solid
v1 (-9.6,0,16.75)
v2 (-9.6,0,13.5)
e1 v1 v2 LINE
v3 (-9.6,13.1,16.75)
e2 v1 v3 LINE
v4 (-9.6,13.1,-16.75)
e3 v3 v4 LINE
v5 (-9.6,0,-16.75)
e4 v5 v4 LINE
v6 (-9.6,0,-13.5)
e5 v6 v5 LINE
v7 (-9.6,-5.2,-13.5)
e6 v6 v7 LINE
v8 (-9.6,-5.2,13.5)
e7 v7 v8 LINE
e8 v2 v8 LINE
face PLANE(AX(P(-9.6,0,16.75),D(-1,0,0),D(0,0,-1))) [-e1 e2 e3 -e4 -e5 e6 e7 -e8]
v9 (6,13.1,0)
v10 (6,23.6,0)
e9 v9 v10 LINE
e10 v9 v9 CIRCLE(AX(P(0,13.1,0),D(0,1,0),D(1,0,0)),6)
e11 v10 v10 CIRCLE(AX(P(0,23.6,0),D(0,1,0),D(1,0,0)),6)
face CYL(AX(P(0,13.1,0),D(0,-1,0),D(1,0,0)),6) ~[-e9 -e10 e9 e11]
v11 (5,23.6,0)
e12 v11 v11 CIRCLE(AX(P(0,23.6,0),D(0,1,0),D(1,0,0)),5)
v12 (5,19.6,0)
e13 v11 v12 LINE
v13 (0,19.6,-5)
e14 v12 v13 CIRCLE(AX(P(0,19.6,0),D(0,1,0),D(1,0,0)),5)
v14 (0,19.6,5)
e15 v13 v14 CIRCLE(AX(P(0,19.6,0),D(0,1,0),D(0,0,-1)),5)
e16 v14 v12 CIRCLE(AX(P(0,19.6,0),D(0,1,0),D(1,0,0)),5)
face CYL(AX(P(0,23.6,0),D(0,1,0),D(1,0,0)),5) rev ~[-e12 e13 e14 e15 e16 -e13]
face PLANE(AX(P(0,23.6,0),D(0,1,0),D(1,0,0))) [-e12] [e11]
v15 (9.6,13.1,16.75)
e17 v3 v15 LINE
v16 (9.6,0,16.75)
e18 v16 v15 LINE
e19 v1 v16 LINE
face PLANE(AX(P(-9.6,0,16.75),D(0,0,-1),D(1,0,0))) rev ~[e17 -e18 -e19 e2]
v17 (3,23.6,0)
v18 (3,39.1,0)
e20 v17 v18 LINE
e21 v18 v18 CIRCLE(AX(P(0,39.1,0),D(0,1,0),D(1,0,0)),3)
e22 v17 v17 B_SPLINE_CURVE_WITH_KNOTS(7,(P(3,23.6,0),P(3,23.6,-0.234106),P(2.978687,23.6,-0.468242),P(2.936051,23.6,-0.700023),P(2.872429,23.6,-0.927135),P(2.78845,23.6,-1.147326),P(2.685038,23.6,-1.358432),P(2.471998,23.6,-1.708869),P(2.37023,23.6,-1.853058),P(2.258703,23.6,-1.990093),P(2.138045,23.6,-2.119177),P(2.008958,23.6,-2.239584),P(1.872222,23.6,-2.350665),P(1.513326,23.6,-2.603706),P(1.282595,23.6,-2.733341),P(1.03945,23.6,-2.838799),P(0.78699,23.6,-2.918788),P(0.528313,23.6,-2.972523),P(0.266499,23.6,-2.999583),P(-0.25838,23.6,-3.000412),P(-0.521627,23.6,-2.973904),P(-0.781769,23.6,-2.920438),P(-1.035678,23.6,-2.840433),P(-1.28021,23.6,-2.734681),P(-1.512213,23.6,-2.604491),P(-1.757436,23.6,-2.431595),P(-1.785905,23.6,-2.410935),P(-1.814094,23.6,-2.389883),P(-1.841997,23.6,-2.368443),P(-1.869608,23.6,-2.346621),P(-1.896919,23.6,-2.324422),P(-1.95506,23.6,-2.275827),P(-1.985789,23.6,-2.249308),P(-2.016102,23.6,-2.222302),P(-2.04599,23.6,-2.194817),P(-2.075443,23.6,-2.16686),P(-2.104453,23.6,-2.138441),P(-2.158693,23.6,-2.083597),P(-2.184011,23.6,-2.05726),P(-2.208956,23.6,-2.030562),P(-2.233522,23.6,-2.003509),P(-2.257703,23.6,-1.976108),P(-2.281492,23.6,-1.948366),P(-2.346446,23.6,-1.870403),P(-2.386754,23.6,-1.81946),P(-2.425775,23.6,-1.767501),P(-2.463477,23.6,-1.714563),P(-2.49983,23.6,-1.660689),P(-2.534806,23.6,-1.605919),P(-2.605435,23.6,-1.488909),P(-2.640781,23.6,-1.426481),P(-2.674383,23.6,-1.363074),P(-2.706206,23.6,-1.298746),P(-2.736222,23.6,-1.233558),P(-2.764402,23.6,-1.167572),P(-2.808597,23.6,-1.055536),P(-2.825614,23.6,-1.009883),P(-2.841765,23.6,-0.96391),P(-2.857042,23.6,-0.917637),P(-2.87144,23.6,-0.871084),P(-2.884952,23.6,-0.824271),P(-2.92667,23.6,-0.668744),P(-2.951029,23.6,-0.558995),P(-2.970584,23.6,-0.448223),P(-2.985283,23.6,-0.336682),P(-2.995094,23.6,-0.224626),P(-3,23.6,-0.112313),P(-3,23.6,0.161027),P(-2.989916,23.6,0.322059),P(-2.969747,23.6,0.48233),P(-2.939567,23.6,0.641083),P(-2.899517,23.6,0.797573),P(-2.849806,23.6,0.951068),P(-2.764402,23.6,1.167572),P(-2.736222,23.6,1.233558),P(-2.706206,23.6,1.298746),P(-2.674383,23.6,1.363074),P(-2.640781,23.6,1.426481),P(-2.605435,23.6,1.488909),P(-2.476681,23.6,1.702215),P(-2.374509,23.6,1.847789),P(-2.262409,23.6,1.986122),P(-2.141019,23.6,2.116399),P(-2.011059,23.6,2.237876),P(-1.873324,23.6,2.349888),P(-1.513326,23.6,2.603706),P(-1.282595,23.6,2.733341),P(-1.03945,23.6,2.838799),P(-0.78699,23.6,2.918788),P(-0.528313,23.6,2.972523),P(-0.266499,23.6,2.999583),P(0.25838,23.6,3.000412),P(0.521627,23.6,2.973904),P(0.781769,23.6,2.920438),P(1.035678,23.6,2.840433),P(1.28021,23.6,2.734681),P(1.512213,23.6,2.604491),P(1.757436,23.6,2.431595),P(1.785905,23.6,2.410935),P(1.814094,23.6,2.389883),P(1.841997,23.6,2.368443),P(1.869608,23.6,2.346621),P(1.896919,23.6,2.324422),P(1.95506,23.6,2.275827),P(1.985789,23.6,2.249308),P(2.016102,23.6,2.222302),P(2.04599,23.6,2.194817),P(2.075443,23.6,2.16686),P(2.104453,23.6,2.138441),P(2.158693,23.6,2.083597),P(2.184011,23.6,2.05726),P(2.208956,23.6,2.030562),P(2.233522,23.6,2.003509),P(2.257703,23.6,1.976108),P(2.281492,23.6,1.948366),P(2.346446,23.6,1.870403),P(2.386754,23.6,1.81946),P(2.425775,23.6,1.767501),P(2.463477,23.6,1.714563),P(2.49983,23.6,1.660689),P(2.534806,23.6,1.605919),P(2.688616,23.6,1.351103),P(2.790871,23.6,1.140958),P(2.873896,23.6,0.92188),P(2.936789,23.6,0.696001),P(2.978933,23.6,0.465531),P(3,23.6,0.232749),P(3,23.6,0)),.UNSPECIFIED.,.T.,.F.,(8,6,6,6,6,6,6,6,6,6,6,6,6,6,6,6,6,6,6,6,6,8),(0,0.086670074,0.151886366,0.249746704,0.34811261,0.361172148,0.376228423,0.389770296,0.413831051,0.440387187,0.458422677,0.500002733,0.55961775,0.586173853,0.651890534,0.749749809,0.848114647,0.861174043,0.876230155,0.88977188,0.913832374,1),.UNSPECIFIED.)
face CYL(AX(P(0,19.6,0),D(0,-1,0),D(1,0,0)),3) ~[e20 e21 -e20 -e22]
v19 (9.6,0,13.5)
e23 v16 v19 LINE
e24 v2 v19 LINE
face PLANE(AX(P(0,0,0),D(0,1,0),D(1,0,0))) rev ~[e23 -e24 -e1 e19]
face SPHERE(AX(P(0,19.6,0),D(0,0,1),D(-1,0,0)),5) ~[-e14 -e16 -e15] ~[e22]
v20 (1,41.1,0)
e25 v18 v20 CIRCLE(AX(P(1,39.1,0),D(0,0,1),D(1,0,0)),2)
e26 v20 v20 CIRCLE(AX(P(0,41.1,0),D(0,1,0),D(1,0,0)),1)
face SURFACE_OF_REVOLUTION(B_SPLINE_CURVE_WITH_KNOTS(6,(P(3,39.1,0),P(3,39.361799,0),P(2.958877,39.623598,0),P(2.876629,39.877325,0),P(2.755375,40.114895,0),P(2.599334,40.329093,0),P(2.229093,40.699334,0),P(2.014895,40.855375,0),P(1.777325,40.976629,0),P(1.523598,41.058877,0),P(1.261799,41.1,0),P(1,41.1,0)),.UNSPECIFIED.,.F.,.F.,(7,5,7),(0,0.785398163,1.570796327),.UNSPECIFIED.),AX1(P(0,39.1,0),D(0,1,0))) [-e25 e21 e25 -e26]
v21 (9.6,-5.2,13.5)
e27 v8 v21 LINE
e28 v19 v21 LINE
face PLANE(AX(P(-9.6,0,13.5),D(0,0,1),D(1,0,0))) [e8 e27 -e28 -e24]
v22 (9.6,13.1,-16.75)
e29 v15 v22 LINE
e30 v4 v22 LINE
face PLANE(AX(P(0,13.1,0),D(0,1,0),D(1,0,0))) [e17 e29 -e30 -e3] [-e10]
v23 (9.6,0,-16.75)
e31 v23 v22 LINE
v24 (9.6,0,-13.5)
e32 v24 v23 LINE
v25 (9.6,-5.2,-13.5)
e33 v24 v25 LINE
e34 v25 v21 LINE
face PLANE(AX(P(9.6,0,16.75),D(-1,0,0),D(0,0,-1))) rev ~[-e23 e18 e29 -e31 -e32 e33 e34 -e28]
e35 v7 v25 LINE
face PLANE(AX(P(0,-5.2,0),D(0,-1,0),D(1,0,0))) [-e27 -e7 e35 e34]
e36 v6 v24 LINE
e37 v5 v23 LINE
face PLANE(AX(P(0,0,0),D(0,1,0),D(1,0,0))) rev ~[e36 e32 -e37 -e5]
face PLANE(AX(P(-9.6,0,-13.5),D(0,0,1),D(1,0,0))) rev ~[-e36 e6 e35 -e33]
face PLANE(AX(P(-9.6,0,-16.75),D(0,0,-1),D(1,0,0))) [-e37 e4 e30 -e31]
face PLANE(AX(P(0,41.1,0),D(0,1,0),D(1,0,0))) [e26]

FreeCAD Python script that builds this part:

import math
import FreeCAD as App
import Part
import Sketcher
from FreeCAD import Vector


def edges_at(feature, points):
    """Names of the edges that pass closest to the given points."""
    edges = feature.Shape.Edges
    near = lambda p: min(range(len(edges)), key=lambda i: edges[i].distToShape(Part.Vertex(*p))[0])
    return sorted({f"Edge{near(p) + 1}" for p in points})

doc = App.newDocument("Part")
body = doc.addObject("PartDesign::Body", "Body")

sketch1 = body.newObject("Sketcher::SketchObject", "Sketch")
sketch1.AttachmentSupport = (doc.getObject("XZ_Plane"), [""])
sketch1.MapMode = "FlatFace"
sketch1.addGeometry(Part.LineSegment(Vector(-10, -17, 0), Vector(-10, 17, 0)), False)
sketch1.addGeometry(Part.LineSegment(Vector(-10, 17, 0), Vector(10, 17, 0)), False)
sketch1.addGeometry(Part.LineSegment(Vector(10, 17, 0), Vector(10, -17, 0)), False)
sketch1.addGeometry(Part.LineSegment(Vector(10, -17, 0), Vector(-10, -17, 0)), False)
sketch1.addConstraint(Sketcher.Constraint("Coincident", 0, 2, 1, 1))
sketch1.addConstraint(Sketcher.Constraint("Coincident", 1, 2, 2, 1))
sketch1.addConstraint(Sketcher.Constraint("Coincident", 2, 2, 3, 1))
sketch1.addConstraint(Sketcher.Constraint("Coincident", 3, 2, 0, 1))
sketch1.addConstraint(Sketcher.Constraint("Vertical", 0))
sketch1.addConstraint(Sketcher.Constraint("Horizontal", 1))
sketch1.addConstraint(Sketcher.Constraint("Vertical", 2))
sketch1.addConstraint(Sketcher.Constraint("Horizontal", 3))
sketch1.addConstraint(Sketcher.Constraint("Symmetric", 0, 2, 2, 2, -1, 1))
sketch1.addConstraint(Sketcher.Constraint("DistanceX", 1, 1, 1, 2, 19.2))
sketch1.addConstraint(Sketcher.Constraint("DistanceY", 0, 1, 0, 2, 33.5))
pad1 = body.newObject("PartDesign::Pad", "Pad")
pad1.Profile = sketch1
pad1.Length = 13.1
pad1.Reversed = True

sketch2 = body.newObject("Sketcher::SketchObject", "Sketch001")
sketch2.AttachmentSupport = (doc.getObject("XZ_Plane"), [""])
sketch2.MapMode = "FlatFace"
sketch2.AttachmentOffset = App.Placement(Vector(0, 0, -13.1), App.Rotation())
sketch2.addGeometry(Part.Circle(Vector(0, 0, 0), Vector(0, 0, 1), 6), False)
sketch2.addConstraint(Sketcher.Constraint("Coincident", 0, 3, -1, 1))
sketch2.addConstraint(Sketcher.Constraint("Diameter", 0, 12.0))
pad2 = body.newObject("PartDesign::Pad", "Pad001")
pad2.Profile = sketch2
pad2.Length = 10.5
pad2.Reversed = True

sketch3 = body.newObject("Sketcher::SketchObject", "Sketch002")
sketch3.AttachmentSupport = (doc.getObject("XZ_Plane"), [""])
sketch3.MapMode = "FlatFace"
sketch3.AttachmentOffset = App.Placement(Vector(0, 0, -23.6), App.Rotation())
sketch3.addGeometry(Part.Circle(Vector(0, 0, 0), Vector(0, 0, 1), 5), False)
sketch3.addConstraint(Sketcher.Constraint("Coincident", 0, 3, -1, 1))
sketch3.addConstraint(Sketcher.Constraint("Diameter", 0, 10.0))
pocket1 = body.newObject("PartDesign::Pocket", "Pocket")
pocket1.Profile = sketch3
pocket1.Length = 4
pocket1.Reversed = True

sketch4 = body.newObject("Sketcher::SketchObject", "Sketch003")
sketch4.AttachmentSupport = (doc.getObject("XZ_Plane"), [""])
sketch4.MapMode = "FlatFace"
sketch4.AttachmentOffset = App.Placement(Vector(0, 0, -19.6), App.Rotation())
sketch4.addGeometry(Part.Circle(Vector(0, 0, 0), Vector(0, 0, 1), 3), False)
sketch4.addConstraint(Sketcher.Constraint("Coincident", 0, 3, -1, 1))
sketch4.addConstraint(Sketcher.Constraint("Diameter", 0, 6.0))
pad3 = body.newObject("PartDesign::Pad", "Pad002")
pad3.Profile = sketch4
pad3.Length = 21.5
pad3.Reversed = True

sketch5 = body.newObject("Sketcher::SketchObject", "Sketch004")
sketch5.AttachmentSupport = (doc.getObject("XZ_Plane"), [""])
sketch5.MapMode = "FlatFace"
sketch5.AttachmentOffset = App.Placement(Vector(0, 0, -19.6), App.Rotation())
sketch5.addGeometry(Part.LineSegment(Vector(0, 5, 0), Vector(0, -5, 0)), False)
sketch5.addGeometry(Part.ArcOfCircle(Part.Circle(Vector(0, 0, 0), Vector(0, 0, 1), 5), math.radians(90), math.radians(270)), False)
sketch5.addConstraint(Sketcher.Constraint("Coincident", 0, 1, 1, 1))
sketch5.addConstraint(Sketcher.Constraint("Coincident", 1, 2, 0, 2))
sketch5.addConstraint(Sketcher.Constraint("Vertical", 0))
sketch5.addConstraint(Sketcher.Constraint("Coincident", 1, 3, -1, 1))
sketch5.addConstraint(Sketcher.Constraint("PointOnObject", 0, 1, -2))
sketch5.addConstraint(Sketcher.Constraint("Radius", 1, 5.0))
revolution = body.newObject("PartDesign::Revolution", "Revolution")
revolution.Profile = sketch5
revolution.ReferenceAxis = (sketch5, ["V_Axis"])
revolution.Angle = 180
revolution.Reversed = True
doc.recompute()

fillet = body.newObject("PartDesign::Fillet", "Fillet")
fillet.Base = (revolution, edges_at(revolution, [(-3, 41.1, 0)]))
fillet.Radius = 2

sketch6 = body.newObject("Sketcher::SketchObject", "Sketch005")
sketch6.AttachmentSupport = (doc.getObject("XZ_Plane"), [""])
sketch6.MapMode = "FlatFace"
sketch6.addGeometry(Part.LineSegment(Vector(-10, 14, 0), Vector(-10, -14, 0)), False)
sketch6.addGeometry(Part.LineSegment(Vector(-10, -14, 0), Vector(10, -14, 0)), False)
sketch6.addGeometry(Part.LineSegment(Vector(10, -14, 0), Vector(10, 14, 0)), False)
sketch6.addGeometry(Part.LineSegment(Vector(10, 14, 0), Vector(-10, 14, 0)), False)
sketch6.addConstraint(Sketcher.Constraint("Coincident", 0, 2, 1, 1))
sketch6.addConstraint(Sketcher.Constraint("Coincident", 1, 2, 2, 1))
sketch6.addConstraint(Sketcher.Constraint("Coincident", 2, 2, 3, 1))
sketch6.addConstraint(Sketcher.Constraint("Coincident", 3, 2, 0, 1))
sketch6.addConstraint(Sketcher.Constraint("Vertical", 0))
sketch6.addConstraint(Sketcher.Constraint("Horizontal", 1))
sketch6.addConstraint(Sketcher.Constraint("Vertical", 2))
sketch6.addConstraint(Sketcher.Constraint("Horizontal", 3))
sketch6.addConstraint(Sketcher.Constraint("Symmetric", 0, 2, 2, 2, -1, 1))
sketch6.addConstraint(Sketcher.Constraint("DistanceY", 0, 2, 0, 1, 27.0))
sketch6.addConstraint(Sketcher.Constraint("DistanceX", 1, 1, 1, 2, 19.2))
pad4 = body.newObject("PartDesign::Pad", "Pad003")
pad4.Profile = sketch6
pad4.Length = 5.2

doc.recompute()
